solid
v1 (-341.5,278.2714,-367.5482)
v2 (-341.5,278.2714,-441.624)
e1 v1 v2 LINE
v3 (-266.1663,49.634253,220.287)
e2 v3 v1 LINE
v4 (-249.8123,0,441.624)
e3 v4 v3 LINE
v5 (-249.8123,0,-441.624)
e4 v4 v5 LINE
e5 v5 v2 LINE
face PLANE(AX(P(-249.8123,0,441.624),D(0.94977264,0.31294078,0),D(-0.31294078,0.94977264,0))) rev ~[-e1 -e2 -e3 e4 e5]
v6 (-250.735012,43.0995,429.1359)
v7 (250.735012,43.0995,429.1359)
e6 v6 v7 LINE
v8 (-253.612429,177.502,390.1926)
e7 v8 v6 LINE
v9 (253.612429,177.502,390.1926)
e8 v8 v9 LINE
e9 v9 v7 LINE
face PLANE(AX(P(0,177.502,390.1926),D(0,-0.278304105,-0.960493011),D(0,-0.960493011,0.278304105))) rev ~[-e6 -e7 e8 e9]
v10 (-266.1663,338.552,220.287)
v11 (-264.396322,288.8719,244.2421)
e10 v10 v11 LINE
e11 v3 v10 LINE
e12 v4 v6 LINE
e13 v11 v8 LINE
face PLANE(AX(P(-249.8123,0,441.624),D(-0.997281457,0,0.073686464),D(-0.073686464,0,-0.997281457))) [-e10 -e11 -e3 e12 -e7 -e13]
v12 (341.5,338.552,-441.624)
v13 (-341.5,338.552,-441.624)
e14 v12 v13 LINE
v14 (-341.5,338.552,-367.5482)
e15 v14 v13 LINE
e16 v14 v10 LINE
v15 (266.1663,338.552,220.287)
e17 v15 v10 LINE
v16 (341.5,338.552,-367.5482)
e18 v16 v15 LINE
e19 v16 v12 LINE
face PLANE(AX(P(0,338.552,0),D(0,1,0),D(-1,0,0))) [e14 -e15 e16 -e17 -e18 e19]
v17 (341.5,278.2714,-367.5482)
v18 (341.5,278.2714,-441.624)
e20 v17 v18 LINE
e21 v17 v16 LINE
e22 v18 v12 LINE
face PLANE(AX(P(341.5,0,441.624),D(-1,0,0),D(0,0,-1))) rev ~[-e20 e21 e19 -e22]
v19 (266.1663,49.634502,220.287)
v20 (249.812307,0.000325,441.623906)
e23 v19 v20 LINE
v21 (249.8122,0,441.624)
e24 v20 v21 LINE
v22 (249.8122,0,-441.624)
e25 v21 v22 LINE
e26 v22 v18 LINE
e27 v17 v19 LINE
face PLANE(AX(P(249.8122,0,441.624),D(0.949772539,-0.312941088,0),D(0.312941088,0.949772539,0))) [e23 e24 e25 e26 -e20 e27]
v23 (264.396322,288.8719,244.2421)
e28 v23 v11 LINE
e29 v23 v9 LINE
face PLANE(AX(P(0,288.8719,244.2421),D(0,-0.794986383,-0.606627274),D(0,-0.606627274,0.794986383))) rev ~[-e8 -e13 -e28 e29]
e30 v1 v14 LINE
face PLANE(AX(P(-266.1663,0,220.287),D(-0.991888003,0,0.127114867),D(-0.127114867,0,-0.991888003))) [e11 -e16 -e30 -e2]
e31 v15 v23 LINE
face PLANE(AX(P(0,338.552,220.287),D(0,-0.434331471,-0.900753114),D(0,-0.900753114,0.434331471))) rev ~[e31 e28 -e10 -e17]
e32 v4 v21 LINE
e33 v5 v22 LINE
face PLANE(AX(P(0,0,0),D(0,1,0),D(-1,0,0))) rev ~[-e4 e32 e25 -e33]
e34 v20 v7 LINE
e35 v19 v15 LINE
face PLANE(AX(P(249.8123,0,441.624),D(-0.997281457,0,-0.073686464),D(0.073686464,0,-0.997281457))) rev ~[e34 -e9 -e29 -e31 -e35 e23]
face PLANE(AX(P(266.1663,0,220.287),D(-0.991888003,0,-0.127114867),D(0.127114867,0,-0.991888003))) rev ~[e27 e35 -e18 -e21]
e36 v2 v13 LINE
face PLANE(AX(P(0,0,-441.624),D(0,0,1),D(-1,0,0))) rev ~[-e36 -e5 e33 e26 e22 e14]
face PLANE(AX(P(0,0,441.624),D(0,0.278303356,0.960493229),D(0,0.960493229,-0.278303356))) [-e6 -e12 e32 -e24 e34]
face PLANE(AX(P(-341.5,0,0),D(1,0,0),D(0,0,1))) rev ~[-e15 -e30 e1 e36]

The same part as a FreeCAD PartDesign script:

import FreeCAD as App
import Part
import Sketcher
from FreeCAD import Vector
Q = App.Units.Quantity

doc = App.newDocument("Part")
body = doc.addObject("PartDesign::Body", "Body")

sketch1 = body.newObject("Sketcher::SketchObject", "Sketch")
sketch1.AttachmentSupport = (doc.getObject("XZ_Plane"), [""])
sketch1.MapMode = "FlatFace"
sketch1.addGeometry([
    Part.LineSegment(Vector(-342, 442, 0), Vector(342, 442, 0)),
    Part.LineSegment(Vector(342, 442, 0), Vector(342, -442, 0)),
    Part.LineSegment(Vector(342, -442, 0), Vector(-342, -442, 0)),
    Part.LineSegment(Vector(-342, -442, 0), Vector(-342, 442, 0)),
], False)
sketch1.addConstraint([
    Sketcher.Constraint("Coincident", 0, 2, 1, 1),
    Sketcher.Constraint("Coincident", 1, 2, 2, 1),
    Sketcher.Constraint("Coincident", 2, 2, 3, 1),
    Sketcher.Constraint("Coincident", 3, 2, 0, 1),
    Sketcher.Constraint("Horizontal", 0),
    Sketcher.Constraint("Vertical", 1),
    Sketcher.Constraint("Horizontal", 2),
    Sketcher.Constraint("Vertical", 3),
    Sketcher.Constraint("Symmetric", 0, 2, 2, 2, -1, 1),
    Sketcher.Constraint("DistanceX", 0, 1, 0, 2, Q("683 mm")),
    Sketcher.Constraint("DistanceY", 1, 2, 1, 1, Q("883.248 mm")),
])
pad1 = body.newObject("PartDesign::Pad", "Pad")
pad1.Profile = sketch1
pad1.Length = 338.552
pad1.Reversed = True

sketch2 = body.newObject("Sketcher::SketchObject", "Sketch001")
sketch2.AttachmentSupport = (doc.getObject("XZ_Plane"), [""])
sketch2.MapMode = "FlatFace"
sketch2.addGeometry([
    Part.LineSegment(Vector(342, 442, 0), Vector(250, 442, 0)),
    Part.LineSegment(Vector(250, 442, 0), Vector(266, 220, 0)),
    Part.LineSegment(Vector(266, 220, 0), Vector(342, -368, 0)),
    Part.LineSegment(Vector(342, -368, 0), Vector(342, 442, 0)),
    Part.LineSegment(Vector(-250, 442, 0), Vector(-342, 442, 0)),
    Part.LineSegment(Vector(-342, 442, 0), Vector(-342, -368, 0)),
    Part.LineSegment(Vector(-342, -368, 0), Vector(-266, 220, 0)),
    Part.LineSegment(Vector(-266, 220, 0), Vector(-250, 442, 0)),
], False)
sketch2.addConstraint([
    Sketcher.Constraint("Coincident", 0, 2, 1, 1),
    Sketcher.Constraint("Coincident", 1, 2, 2, 1),
    Sketcher.Constraint("Coincident", 2, 2, 3, 1),
    Sketcher.Constraint("Coincident", 3, 2, 0, 1),
    Sketcher.Constraint("Coincident", 4, 2, 5, 1),
    Sketcher.Constraint("Coincident", 5, 2, 6, 1),
    Sketcher.Constraint("Coincident", 6, 2, 7, 1),
    Sketcher.Constraint("Coincident", 7, 2, 4, 1),
    Sketcher.Constraint("Horizontal", 0),
    Sketcher.Constraint("Vertical", 3),
    Sketcher.Constraint("Horizontal", 4),
    Sketcher.Constraint("Vertical", 5),
    Sketcher.Constraint("Symmetric", 3, 2, 4, 2, -2),
    Sketcher.Constraint("Symmetric", 1, 2, 6, 2, -2),
    Sketcher.Constraint("Horizontal", 2, 2, 5, 2),
    Sketcher.Constraint("Equal", 0, 4),
    Sketcher.Constraint("DistanceX", 4, 2, 3, 2, Q("683 mm")),
    Sketcher.Constraint("DistanceX", 0, 2, 0, 1, Q("91.6877 mm")),
    Sketcher.Constraint("DistanceY", 3, 1, 3, 2, Q("809.1722 mm")),
    Sketcher.Constraint("DistanceY", -1, 1, 0, 2, Q("441.624 mm")),
    Sketcher.Constraint("DistanceY", -1, 1, 1, 2, Q("220.287 mm")),
    Sketcher.Constraint("DistanceX", 0, 2, 1, 2, Q("16.354 mm")),
])
pocket1 = body.newObject("PartDesign::Pocket", "Pocket")
pocket1.Profile = sketch2
pocket1.Type = "ThroughAll"

sketch3 = body.newObject("Sketcher::SketchObject", "Sketch002")
sketch3.AttachmentSupport = (doc.getObject("XY_Plane"), [""])
sketch3.MapMode = "FlatFace"
sketch3.AttachmentOffset = App.Placement(Vector(0, 0, 441.624), App.Rotation())
sketch3.addGeometry([
    Part.LineSegment(Vector(342, 278, 0), Vector(250, 0, 0)),
    Part.LineSegment(Vector(250, 0, 0), Vector(342, 0, 0)),
    Part.LineSegment(Vector(342, 0, 0), Vector(342, 278, 0)),
    Part.LineSegment(Vector(-342, 0, 0), Vector(-250, 0, 0)),
    Part.LineSegment(Vector(-250, 0, 0), Vector(-342, 278, 0)),
    Part.LineSegment(Vector(-342, 278, 0), Vector(-342, 0, 0)),
], False)
sketch3.addConstraint([
    Sketcher.Constraint("Coincident", 0, 2, 1, 1),
    Sketcher.Constraint("Coincident", 1, 2, 2, 1),
    Sketcher.Constraint("Coincident", 2, 2, 0, 1),
    Sketcher.Constraint("Coincident", 3, 2, 4, 1),
    Sketcher.Constraint("Coincident", 4, 2, 5, 1),
    Sketcher.Constraint("Coincident", 5, 2, 3, 1),
    Sketcher.Constraint("Horizontal", 1),
    Sketcher.Constraint("Vertical", 2),
    Sketcher.Constraint("Horizontal", 3),
    Sketcher.Constraint("Vertical", 5),
    Sketcher.Constraint("Symmetric", 0, 2, 3, 2, -1, 1),
    Sketcher.Constraint("Symmetric", 2, 2, 4, 2, -2),
    Sketcher.Constraint("PointOnObject", 0, 2, -1),
    Sketcher.Constraint("DistanceX", 4, 2, 2, 2, Q("683 mm")),
    Sketcher.Constraint("DistanceX", 1, 1, 1, 2, Q("91.6878 mm")),
    Sketcher.Constraint("DistanceY", 2, 1, 2, 2, Q("278.2714 mm")),
])
pocket2 = body.newObject("PartDesign::Pocket", "Pocket001")
pocket2.Profile = sketch3
pocket2.Type = "ThroughAll"

sketch4 = body.newObject("Sketcher::SketchObject", "Sketch003")
sketch4.AttachmentSupport = (doc.getObject("YZ_Plane"), [""])
sketch4.MapMode = "FlatFace"
sketch4.addGeometry([
    Part.LineSegment(Vector(339, 442, 0), Vector(0, 442, 0)),
    Part.LineSegment(Vector(0, 442, 0), Vector(43, 429, 0)),
    Part.LineSegment(Vector(43, 429, 0), Vector(178, 390, 0)),
    Part.LineSegment(Vector(178, 390, 0), Vector(289, 244, 0)),
    Part.LineSegment(Vector(289, 244, 0), Vector(339, 220, 0)),
    Part.LineSegment(Vector(339, 220, 0), Vector(339, 442, 0)),
], False)
sketch4.addConstraint([
    Sketcher.Constraint("Coincident", 0, 2, 1, 1),
    Sketcher.Constraint("Coincident", 1, 2, 2, 1),
    Sketcher.Constraint("Coincident", 2, 2, 3, 1),
    Sketcher.Constraint("Coincident", 3, 2, 4, 1),
    Sketcher.Constraint("Coincident", 4, 2, 5, 1),
    Sketcher.Constraint("Coincident", 5, 2, 0, 1),
    Sketcher.Constraint("Horizontal", 0),
    Sketcher.Constraint("Vertical", 5),
    Sketcher.Constraint("PointOnObject", 0, 2, -2),
    Sketcher.Constraint("Parallel", 1, 2),
    Sketcher.Constraint("Angle", 1, Q("-16.159 deg")),
    Sketcher.Constraint("DistanceX", 0, 2, 0, 1, Q("338.552 mm")),
    Sketcher.Constraint("DistanceY", 5, 1, 5, 2, Q("221.337 mm")),
    Sketcher.Constraint("DistanceX", 2, 2, 3, 2, Q("111.37 mm")),
    Sketcher.Constraint("DistanceX", 3, 2, 4, 2, Q("49.68 mm")),
    Sketcher.Constraint("Distance", 4, Q("55.154 mm")),
    Sketcher.Constraint("DistanceY", -1, 1, 0, 2, Q("441.624 mm")),
    Sketcher.Constraint("DistanceY", -1, 1, 1, 2, Q("429.136 mm")),
])
pocket3 = body.newObject("PartDesign::Pocket", "Pocket002")
pocket3.Profile = sketch4
pocket3.Type = "ThroughAll"
pocket3.Midplane = True

doc.recompute()
